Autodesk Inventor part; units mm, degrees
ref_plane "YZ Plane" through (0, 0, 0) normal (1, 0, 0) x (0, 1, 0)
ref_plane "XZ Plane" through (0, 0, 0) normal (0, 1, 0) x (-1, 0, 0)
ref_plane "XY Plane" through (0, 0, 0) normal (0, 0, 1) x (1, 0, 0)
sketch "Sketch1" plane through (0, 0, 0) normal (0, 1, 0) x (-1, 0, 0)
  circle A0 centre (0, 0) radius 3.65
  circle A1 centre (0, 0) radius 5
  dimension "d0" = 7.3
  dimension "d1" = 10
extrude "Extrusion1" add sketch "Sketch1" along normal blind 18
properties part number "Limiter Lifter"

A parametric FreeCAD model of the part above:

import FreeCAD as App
import Part
import Sketcher
from FreeCAD import Vector

doc = App.newDocument("Part")
body = doc.addObject("PartDesign::Body", "Body")

sketch1 = body.newObject("Sketcher::SketchObject", "Sketch")
sketch1.AttachmentSupport = (doc.getObject("XZ_Plane"), [""])
sketch1.MapMode = "FlatFace"
sketch1.addGeometry([
    Part.Circle(Vector(0, 0, 0), Vector(0, 0, 1), 5),
    Part.Circle(Vector(0, 0, 0), Vector(0, 0, 1), 3.6),
], False)
sketch1.addConstraint([
    Sketcher.Constraint("Coincident", 0, 3, -1, 1),
    Sketcher.Constraint("Coincident", 1, 3, -1, 1),
    Sketcher.Constraint("Diameter", 0, 10.0),
    Sketcher.Constraint("Diameter", 1, 7.3),
])
pad1 = body.newObject("PartDesign::Pad", "Pad")
pad1.Profile = sketch1
pad1.Length = 18
pad1.Reversed = True

doc.recompute()
